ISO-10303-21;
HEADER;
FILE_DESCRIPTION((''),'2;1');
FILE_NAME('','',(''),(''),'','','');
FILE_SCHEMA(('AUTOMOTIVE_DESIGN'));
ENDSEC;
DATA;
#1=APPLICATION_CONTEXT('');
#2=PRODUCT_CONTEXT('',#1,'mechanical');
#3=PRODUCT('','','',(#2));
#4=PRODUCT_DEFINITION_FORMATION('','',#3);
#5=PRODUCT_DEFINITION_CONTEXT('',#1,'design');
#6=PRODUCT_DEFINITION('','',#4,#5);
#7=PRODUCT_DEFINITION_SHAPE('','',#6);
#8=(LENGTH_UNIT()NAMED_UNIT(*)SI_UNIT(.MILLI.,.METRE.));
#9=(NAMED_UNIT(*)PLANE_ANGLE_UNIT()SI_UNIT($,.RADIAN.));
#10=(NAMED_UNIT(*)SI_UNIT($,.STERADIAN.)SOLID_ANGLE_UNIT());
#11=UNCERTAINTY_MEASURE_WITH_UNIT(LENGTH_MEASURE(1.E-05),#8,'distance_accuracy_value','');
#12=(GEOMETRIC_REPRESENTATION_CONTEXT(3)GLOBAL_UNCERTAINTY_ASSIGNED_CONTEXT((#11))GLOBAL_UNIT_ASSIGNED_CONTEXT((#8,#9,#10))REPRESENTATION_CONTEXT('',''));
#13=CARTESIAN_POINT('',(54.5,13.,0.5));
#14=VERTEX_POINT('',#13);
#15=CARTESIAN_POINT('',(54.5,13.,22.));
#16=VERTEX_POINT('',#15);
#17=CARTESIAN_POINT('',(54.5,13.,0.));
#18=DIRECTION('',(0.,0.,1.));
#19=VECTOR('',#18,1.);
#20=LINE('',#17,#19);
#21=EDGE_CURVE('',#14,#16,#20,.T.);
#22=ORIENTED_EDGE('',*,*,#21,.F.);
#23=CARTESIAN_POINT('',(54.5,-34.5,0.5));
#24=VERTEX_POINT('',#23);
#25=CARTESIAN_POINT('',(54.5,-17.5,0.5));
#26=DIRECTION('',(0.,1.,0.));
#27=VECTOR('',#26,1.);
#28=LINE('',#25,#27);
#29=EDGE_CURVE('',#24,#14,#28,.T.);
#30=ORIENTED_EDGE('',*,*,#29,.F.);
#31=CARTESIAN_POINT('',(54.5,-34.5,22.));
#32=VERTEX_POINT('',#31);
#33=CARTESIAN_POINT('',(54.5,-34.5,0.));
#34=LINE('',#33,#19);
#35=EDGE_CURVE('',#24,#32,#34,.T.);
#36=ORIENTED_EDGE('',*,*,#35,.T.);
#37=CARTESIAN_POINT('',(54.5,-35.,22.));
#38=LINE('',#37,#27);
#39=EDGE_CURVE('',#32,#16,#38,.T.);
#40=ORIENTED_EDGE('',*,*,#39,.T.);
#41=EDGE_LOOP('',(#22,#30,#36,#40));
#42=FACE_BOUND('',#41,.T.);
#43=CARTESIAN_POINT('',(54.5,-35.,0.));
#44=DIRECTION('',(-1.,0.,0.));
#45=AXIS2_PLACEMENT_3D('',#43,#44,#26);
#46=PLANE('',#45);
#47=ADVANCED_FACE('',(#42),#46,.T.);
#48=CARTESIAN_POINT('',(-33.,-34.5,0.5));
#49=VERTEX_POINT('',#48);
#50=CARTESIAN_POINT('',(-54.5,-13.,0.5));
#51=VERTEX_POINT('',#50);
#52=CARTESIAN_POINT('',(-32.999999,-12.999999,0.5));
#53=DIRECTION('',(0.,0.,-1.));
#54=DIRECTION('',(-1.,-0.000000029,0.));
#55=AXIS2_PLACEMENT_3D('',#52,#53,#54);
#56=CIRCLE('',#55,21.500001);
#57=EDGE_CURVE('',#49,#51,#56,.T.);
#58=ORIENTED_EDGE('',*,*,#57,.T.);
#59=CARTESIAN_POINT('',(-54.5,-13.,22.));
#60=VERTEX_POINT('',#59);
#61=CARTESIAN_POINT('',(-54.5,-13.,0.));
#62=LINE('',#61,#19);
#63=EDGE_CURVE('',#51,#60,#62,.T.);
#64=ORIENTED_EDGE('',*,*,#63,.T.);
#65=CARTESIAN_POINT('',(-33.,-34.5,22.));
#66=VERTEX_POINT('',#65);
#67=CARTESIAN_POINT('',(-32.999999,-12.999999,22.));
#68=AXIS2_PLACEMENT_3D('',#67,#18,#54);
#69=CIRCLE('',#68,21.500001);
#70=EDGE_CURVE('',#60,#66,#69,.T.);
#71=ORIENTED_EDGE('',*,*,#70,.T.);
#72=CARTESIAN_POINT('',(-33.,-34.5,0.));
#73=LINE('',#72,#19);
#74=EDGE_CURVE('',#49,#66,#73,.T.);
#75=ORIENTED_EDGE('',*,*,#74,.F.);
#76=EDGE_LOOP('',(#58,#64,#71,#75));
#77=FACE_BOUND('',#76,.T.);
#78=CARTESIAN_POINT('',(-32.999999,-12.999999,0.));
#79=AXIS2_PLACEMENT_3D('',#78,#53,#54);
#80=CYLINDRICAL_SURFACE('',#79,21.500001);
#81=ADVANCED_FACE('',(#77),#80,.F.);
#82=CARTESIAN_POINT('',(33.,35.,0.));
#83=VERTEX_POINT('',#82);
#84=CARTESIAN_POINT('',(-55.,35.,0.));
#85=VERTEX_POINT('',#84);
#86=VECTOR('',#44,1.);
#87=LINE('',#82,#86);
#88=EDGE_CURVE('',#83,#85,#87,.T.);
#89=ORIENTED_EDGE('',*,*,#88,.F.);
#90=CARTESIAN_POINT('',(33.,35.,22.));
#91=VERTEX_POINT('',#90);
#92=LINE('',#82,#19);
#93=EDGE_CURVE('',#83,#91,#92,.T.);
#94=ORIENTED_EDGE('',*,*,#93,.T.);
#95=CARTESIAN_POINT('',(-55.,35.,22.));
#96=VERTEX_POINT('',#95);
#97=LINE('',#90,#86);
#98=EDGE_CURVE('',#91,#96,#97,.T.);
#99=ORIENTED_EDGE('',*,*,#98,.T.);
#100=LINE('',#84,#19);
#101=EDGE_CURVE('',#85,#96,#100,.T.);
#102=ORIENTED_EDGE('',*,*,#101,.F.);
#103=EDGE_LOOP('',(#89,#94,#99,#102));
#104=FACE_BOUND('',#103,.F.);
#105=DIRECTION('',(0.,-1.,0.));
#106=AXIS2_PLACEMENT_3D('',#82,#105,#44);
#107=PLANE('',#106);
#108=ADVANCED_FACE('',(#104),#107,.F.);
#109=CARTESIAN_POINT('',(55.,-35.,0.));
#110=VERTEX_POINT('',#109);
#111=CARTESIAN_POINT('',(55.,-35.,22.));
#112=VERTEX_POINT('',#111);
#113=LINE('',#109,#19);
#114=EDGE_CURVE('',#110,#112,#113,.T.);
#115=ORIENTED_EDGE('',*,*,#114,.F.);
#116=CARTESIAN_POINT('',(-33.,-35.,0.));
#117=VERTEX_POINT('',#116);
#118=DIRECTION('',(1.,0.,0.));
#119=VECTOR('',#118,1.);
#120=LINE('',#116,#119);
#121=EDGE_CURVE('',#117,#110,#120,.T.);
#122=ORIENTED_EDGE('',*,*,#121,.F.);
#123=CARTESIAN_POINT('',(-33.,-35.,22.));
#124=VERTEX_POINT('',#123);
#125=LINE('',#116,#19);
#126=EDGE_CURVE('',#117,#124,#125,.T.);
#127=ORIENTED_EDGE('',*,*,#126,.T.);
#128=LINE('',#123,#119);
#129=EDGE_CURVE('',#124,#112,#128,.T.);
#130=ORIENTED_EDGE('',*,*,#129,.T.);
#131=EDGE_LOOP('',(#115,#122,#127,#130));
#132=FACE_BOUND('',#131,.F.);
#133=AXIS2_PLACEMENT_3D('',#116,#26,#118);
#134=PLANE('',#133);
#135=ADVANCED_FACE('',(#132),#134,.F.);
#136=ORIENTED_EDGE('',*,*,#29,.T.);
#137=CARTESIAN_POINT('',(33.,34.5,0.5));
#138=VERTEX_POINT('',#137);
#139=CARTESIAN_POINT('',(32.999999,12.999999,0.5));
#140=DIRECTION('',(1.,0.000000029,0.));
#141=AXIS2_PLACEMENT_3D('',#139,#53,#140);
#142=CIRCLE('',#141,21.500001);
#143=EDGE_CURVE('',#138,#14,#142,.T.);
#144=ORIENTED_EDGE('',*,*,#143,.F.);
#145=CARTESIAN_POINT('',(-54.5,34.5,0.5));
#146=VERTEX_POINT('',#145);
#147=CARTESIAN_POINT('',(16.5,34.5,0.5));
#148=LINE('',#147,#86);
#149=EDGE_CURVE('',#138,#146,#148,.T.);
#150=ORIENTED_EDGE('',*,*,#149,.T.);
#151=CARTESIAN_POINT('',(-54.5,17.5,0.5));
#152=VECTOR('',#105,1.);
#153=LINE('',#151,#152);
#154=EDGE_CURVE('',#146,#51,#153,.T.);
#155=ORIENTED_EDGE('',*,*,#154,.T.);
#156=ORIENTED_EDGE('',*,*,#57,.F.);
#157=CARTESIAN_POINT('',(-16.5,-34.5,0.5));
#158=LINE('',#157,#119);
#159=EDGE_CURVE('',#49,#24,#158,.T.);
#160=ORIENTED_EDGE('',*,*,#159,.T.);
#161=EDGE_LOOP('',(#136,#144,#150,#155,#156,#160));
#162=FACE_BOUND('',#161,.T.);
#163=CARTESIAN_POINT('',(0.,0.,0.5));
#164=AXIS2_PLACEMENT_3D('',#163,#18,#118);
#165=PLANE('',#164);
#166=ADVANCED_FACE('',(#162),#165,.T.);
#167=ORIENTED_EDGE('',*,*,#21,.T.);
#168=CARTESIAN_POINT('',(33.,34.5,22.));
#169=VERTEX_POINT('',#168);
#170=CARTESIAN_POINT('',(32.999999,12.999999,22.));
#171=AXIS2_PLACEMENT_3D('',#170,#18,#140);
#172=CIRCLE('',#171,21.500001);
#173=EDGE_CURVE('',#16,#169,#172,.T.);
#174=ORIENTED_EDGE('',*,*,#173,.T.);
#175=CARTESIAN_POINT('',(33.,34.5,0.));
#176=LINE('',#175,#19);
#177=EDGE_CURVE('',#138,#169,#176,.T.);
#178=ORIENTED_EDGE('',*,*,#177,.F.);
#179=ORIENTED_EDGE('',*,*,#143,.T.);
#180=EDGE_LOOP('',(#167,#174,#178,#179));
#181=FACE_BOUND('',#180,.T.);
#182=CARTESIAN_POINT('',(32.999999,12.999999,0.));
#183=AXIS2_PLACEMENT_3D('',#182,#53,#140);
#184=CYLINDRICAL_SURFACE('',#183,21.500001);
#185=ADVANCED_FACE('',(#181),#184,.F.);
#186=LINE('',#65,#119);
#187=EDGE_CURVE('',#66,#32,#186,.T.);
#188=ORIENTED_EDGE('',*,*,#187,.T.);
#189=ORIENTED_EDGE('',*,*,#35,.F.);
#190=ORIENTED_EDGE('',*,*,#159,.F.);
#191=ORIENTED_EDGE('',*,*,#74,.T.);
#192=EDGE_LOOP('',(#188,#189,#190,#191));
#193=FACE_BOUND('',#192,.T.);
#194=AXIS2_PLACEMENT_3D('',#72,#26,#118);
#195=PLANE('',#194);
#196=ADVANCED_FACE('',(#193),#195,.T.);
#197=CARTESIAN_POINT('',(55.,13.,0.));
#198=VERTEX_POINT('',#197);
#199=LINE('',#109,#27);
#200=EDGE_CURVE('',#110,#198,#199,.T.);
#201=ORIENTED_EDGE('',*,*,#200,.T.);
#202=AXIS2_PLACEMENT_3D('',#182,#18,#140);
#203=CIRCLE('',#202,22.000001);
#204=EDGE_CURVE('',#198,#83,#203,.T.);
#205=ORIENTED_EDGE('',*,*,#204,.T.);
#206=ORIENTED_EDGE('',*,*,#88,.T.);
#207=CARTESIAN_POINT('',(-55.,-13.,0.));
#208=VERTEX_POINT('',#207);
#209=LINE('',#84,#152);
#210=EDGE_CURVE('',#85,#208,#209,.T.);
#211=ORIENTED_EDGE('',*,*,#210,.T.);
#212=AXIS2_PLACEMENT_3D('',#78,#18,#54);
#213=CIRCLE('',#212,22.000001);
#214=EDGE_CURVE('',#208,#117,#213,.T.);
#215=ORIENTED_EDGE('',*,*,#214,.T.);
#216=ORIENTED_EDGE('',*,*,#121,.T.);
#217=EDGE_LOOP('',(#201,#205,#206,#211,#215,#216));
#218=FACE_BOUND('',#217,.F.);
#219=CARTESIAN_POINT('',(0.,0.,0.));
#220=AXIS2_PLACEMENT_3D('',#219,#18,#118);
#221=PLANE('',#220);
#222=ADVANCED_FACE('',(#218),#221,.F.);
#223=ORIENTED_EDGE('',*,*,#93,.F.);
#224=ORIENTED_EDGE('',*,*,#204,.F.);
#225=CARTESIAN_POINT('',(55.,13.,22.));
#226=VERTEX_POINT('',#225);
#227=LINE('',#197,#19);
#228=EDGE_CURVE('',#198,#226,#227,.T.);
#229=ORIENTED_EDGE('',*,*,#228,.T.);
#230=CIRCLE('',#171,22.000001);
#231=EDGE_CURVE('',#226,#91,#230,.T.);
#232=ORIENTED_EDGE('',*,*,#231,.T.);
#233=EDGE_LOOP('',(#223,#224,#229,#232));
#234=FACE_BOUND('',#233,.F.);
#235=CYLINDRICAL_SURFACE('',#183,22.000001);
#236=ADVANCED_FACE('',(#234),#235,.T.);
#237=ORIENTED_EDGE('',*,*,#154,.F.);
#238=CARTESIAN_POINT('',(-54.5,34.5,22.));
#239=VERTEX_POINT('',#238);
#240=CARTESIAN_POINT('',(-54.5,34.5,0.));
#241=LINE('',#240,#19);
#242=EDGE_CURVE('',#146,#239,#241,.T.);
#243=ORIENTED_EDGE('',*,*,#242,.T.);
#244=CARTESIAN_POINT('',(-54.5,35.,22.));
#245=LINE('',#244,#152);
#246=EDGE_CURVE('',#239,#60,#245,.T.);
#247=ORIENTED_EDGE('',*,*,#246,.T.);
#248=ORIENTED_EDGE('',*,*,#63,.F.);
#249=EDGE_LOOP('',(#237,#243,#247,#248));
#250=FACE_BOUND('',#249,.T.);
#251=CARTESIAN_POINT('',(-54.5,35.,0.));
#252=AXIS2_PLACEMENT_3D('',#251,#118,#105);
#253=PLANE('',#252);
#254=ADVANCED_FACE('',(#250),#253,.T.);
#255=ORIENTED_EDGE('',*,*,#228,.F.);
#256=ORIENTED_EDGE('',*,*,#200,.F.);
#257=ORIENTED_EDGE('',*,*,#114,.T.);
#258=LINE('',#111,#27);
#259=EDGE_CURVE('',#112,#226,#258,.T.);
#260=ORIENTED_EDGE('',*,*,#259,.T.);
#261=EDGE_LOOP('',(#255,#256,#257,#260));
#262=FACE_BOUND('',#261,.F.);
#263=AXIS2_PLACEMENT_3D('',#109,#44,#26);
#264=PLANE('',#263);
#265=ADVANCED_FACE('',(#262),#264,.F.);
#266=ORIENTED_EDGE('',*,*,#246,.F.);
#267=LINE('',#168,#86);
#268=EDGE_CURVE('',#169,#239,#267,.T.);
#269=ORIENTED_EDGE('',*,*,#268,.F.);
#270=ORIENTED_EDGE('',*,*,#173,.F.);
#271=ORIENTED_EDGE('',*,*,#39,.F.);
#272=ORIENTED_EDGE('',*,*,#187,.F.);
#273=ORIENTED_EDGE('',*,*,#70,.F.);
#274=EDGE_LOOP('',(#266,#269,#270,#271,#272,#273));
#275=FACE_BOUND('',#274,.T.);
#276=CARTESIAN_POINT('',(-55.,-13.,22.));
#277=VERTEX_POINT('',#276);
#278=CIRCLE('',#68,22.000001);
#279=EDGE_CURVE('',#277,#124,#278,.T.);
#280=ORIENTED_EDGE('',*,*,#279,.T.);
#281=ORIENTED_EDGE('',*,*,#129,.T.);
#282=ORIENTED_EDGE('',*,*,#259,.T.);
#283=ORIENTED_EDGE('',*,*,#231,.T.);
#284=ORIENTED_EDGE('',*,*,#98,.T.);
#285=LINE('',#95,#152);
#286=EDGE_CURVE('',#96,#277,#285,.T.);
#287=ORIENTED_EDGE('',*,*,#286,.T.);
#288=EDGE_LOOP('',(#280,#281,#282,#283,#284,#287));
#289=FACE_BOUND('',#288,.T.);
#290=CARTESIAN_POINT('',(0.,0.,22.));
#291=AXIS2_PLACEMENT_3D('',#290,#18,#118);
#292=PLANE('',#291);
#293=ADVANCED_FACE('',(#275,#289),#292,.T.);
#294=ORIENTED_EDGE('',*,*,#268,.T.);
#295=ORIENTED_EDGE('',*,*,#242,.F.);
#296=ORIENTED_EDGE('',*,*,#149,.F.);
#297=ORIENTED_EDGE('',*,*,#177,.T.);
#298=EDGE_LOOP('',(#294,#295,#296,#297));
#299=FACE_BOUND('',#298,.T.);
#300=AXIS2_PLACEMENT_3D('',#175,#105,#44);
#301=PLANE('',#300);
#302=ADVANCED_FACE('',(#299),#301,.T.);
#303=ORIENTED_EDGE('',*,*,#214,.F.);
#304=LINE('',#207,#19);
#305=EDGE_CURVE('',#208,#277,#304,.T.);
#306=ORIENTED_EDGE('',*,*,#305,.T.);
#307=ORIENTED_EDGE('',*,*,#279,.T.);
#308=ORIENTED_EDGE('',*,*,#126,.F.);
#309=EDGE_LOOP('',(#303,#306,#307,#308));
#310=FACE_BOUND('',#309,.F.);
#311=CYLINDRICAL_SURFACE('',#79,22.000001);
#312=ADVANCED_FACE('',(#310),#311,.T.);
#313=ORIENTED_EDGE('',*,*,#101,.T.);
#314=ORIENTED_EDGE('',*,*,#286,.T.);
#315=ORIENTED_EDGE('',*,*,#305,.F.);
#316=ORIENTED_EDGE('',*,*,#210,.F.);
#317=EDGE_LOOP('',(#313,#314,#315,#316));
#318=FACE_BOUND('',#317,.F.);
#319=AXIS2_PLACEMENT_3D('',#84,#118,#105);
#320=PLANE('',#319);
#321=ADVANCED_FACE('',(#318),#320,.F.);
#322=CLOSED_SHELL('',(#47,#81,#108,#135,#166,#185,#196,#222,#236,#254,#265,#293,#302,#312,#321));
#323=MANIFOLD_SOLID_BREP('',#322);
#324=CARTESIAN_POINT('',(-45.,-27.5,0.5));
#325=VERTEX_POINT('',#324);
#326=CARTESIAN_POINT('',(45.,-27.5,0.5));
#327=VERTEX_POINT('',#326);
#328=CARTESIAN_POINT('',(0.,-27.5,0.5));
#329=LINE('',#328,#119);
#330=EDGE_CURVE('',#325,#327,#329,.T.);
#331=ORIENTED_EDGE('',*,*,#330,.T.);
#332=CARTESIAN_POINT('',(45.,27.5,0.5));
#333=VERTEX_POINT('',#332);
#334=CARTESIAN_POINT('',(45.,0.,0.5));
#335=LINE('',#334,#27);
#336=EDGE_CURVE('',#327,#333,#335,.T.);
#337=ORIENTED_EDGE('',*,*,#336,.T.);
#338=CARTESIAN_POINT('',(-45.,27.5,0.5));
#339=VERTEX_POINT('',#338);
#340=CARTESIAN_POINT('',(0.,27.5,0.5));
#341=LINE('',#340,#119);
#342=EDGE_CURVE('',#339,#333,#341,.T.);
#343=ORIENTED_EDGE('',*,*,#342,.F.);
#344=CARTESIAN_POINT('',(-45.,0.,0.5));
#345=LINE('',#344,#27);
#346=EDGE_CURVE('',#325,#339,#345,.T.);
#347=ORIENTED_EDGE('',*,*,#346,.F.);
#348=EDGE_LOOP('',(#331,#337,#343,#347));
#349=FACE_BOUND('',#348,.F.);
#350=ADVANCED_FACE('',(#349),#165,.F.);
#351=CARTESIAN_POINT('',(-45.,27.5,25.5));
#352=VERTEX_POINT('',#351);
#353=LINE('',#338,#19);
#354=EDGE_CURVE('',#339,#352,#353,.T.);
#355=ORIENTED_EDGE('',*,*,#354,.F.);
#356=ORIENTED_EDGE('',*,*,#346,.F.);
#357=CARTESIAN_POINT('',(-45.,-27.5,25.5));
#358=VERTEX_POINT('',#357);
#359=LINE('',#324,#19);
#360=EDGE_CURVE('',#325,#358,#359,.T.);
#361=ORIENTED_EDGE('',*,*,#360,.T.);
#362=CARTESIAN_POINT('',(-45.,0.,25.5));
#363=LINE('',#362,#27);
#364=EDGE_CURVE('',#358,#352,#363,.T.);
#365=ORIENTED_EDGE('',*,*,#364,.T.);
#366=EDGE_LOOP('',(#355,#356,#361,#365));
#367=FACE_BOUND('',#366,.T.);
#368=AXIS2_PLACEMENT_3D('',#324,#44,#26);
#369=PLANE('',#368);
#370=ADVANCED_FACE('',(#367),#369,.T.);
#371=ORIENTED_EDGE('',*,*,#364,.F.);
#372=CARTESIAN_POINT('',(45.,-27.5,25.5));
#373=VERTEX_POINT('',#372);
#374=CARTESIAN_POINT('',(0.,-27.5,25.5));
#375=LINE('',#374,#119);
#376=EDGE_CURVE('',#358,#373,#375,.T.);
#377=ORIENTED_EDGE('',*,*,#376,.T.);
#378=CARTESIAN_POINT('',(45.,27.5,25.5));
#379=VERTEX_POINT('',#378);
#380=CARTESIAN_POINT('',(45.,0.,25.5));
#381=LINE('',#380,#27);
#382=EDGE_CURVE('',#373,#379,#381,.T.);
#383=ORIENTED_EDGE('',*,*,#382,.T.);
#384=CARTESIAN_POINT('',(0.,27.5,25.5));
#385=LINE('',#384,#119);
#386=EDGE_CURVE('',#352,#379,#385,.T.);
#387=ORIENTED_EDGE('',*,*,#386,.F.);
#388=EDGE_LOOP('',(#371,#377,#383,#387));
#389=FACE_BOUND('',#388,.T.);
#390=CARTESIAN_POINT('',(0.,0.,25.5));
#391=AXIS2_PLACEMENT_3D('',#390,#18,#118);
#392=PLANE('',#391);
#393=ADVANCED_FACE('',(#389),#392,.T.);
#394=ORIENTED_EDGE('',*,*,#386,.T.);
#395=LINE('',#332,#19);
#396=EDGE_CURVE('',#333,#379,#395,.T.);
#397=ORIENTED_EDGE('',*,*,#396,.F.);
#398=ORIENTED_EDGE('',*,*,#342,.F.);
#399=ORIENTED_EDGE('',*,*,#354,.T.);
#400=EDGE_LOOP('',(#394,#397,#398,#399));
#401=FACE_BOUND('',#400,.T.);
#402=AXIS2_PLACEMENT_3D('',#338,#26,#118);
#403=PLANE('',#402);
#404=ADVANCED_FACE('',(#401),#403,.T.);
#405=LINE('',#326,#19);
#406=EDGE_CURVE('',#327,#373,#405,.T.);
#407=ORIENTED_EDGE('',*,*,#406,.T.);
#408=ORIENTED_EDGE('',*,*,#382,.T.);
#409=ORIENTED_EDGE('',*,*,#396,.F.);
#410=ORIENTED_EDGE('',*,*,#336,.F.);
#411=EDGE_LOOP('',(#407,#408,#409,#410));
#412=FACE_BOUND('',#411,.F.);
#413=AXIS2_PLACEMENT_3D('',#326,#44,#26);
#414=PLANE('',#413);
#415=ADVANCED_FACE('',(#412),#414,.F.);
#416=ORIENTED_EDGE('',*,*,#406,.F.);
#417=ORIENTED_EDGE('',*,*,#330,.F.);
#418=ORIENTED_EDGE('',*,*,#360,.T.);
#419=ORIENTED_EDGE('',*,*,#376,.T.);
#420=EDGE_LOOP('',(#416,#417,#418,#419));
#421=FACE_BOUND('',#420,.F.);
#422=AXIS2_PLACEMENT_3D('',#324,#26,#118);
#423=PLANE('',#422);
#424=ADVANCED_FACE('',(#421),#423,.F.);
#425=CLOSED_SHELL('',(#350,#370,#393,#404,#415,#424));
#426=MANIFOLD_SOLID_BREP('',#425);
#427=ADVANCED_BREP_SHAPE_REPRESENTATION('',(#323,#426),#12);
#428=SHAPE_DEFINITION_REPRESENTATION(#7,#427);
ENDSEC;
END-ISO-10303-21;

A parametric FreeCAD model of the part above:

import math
import FreeCAD as App
import Part
import Sketcher

V = App.Vector
Q = App.Units.Quantity


def faces_at(feature, points):
    """Names of the faces that lie closest to the given points."""
    faces = feature.Shape.Faces
    near = lambda p: min(range(len(faces)), key=lambda i: faces[i].distToShape(Part.Vertex(*p))[0])
    return sorted({f"Face{near(p) + 1}" for p in points})


def add_polygon(sketch, points):
    """Adds a closed chain of lines whose ends are joined by coincident constraints."""
    first, n = sketch.GeometryCount, len(points)
    for a, b in zip(points, points[1:] + points[:1]):
        sketch.addGeometry(Part.LineSegment(App.Vector(*a, 0), App.Vector(*b, 0)), False)
    for i in range(n):
        sketch.addConstraint(Sketcher.Constraint("Coincident", first + i, 2, first + (i + 1) % n, 1))

doc = App.newDocument("Part")
body = doc.addObject("PartDesign::Body", "Body")

sketch1 = body.newObject("Sketcher::SketchObject", "Sketch")
sketch1.AttachmentSupport = (doc.getObject("XY_Plane"), [""])
sketch1.MapMode = "FlatFace"
sketch1.addGeometry(Part.ArcOfCircle(Part.Circle(V(33, 13, 0), V(0, 0, 1), 22), math.radians(0), math.radians(90)), False)
sketch1.addGeometry(Part.LineSegment(V(33, 35, 0), V(-55, 35, 0)), False)
sketch1.addGeometry(Part.LineSegment(V(-55, 35, 0), V(-55, -13, 0)), False)
sketch1.addGeometry(Part.ArcOfCircle(Part.Circle(V(-33, -13, 0), V(0, 0, 1), 22), math.radians(-180), math.radians(-90)), False)
sketch1.addGeometry(Part.LineSegment(V(-33, -35, 0), V(55, -35, 0)), False)
sketch1.addGeometry(Part.LineSegment(V(55, -35, 0), V(55, 13, 0)), False)
sketch1.addConstraint(Sketcher.Constraint("Tangent", 0, 2, 1, 1))
sketch1.addConstraint(Sketcher.Constraint("Coincident", 1, 2, 2, 1))
sketch1.addConstraint(Sketcher.Constraint("Tangent", 2, 2, 3, 1))
sketch1.addConstraint(Sketcher.Constraint("Tangent", 3, 2, 4, 1))
sketch1.addConstraint(Sketcher.Constraint("Coincident", 4, 2, 5, 1))
sketch1.addConstraint(Sketcher.Constraint("Tangent", 5, 2, 0, 1))
sketch1.addConstraint(Sketcher.Constraint("Horizontal", 1))
sketch1.addConstraint(Sketcher.Constraint("Vertical", 2))
sketch1.addConstraint(Sketcher.Constraint("Horizontal", 4))
sketch1.addConstraint(Sketcher.Constraint("Vertical", 5))
sketch1.addConstraint(Sketcher.Constraint("Equal", 0, 3))
sketch1.addConstraint(Sketcher.Constraint("Symmetric", 0, 3, 3, 3, -1, 1))
sketch1.addConstraint(Sketcher.Constraint("Radius", 0, Q("22.000001 mm")))
sketch1.addConstraint(Sketcher.Constraint("DistanceX", 1, 2, 1, 1, Q("88 mm")))
sketch1.addConstraint(Sketcher.Constraint("DistanceY", 2, 2, 2, 1, Q("48 mm")))
pad1 = body.newObject("PartDesign::Pad", "Pad")
pad1.Profile = sketch1
pad1.Length = 22
doc.recompute()

thickness = body.newObject("PartDesign::Thickness", "Thickness")
thickness.Base = (pad1, faces_at(pad1, [(0, 0, 22)]))
thickness.Value = 0.5
thickness.Reversed = True
thickness.Join = "Arc"
body2 = doc.addObject("PartDesign::Body", "Body001")

sketch2 = body2.newObject("Sketcher::SketchObject", "Sketch001")
sketch2.AttachmentSupport = (doc.getObject("XY_Plane001"), [""])
sketch2.MapMode = "FlatFace"
sketch2.AttachmentOffset = App.Placement(V(0, 0, 0.5), App.Rotation())
add_polygon(sketch2, [(-45, 28), (-45, -28), (45, -28), (45, 28)])
sketch2.addConstraint(Sketcher.Constraint("Vertical", 0))
sketch2.addConstraint(Sketcher.Constraint("Horizontal", 1))
sketch2.addConstraint(Sketcher.Constraint("Vertical", 2))
sketch2.addConstraint(Sketcher.Constraint("Horizontal", 3))
sketch2.addConstraint(Sketcher.Constraint("Symmetric", 0, 2, 2, 2, -1, 1))
sketch2.addConstraint(Sketcher.Constraint("DistanceX", 1, 1, 1, 2, Q("90 mm")))
sketch2.addConstraint(Sketcher.Constraint("DistanceY", 0, 2, 0, 1, Q("55 mm")))
pad2 = body2.newObject("PartDesign::Pad", "Pad001")
pad2.Profile = sketch2
pad2.Length = 25

doc.recompute()
